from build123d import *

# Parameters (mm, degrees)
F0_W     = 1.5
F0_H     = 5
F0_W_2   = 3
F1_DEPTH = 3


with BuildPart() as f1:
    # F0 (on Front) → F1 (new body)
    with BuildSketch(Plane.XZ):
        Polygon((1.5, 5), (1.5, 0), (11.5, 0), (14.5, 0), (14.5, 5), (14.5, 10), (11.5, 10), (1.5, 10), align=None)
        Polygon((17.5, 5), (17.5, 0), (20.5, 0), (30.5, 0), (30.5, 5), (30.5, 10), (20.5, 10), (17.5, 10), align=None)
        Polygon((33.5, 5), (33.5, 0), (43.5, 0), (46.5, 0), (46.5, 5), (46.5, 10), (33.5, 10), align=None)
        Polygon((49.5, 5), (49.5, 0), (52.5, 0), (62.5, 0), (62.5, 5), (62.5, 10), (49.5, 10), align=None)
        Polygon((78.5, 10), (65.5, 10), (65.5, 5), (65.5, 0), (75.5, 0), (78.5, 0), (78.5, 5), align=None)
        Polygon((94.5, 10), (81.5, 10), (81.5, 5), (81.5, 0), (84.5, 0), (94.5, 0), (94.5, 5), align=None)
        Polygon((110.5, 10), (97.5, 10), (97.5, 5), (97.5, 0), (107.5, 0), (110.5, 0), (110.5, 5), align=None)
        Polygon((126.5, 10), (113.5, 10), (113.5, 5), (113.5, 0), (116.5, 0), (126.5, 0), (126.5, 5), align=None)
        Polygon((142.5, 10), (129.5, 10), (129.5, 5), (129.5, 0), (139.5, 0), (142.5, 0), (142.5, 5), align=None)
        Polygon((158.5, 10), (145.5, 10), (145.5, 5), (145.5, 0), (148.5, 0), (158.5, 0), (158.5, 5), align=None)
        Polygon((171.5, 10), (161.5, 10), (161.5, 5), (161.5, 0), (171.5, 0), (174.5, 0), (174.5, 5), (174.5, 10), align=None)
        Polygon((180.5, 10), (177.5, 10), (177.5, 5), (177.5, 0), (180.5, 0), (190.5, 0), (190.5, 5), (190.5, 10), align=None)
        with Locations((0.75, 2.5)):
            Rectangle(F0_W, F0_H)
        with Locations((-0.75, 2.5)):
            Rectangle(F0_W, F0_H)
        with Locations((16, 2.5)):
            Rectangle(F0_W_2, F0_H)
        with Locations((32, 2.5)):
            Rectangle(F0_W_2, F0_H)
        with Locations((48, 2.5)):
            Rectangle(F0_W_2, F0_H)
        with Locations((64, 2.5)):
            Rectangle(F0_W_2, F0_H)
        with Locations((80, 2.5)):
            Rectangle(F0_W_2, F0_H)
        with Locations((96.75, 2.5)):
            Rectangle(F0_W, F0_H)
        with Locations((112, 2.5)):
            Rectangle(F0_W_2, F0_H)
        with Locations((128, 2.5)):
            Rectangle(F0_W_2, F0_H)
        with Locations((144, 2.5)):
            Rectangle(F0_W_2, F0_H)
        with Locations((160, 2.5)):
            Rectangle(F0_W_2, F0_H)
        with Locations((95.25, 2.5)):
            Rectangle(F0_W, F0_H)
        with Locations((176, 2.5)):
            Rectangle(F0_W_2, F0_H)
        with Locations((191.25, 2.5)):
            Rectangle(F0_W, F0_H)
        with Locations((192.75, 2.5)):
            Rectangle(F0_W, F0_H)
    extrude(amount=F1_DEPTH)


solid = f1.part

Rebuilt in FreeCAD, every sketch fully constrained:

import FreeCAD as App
import Part
import Sketcher
from FreeCAD import Vector


def add_polygon(sketch, points):
    """Adds a closed chain of lines whose ends are joined by coincident constraints."""
    first, n = sketch.GeometryCount, len(points)
    for a, b in zip(points, points[1:] + points[:1]):
        sketch.addGeometry(Part.LineSegment(App.Vector(*a, 0), App.Vector(*b, 0)), False)
    for i in range(n):
        sketch.addConstraint(Sketcher.Constraint("Coincident", first + i, 2, first + (i + 1) % n, 1))

doc = App.newDocument("Part")
params = doc.addObject("Spreadsheet::Sheet", "Params")
for row, (alias, value) in enumerate([
    ("sketch1_width", "13 mm"),
    ("sketch1_width2", "3 mm"),
    ("sketch1_height", "5 mm"),
    ("pad1_length", "3 mm"),
], start=1):
    params.set(f"A{row}", alias)
    params.set(f"B{row}", "=" + value)
    params.setAlias(f"B{row}", alias)

body = doc.addObject("PartDesign::Body", "Body")

sketch1 = body.newObject("Sketcher::SketchObject", "Sketch")
sketch1.AttachmentSupport = (doc.getObject("XZ_Plane"), [""])
sketch1.MapMode = "FlatFace"
add_polygon(sketch1, [(14.5, 5), (14.5, 10), (1.5, 10), (1.5, 5), (-1.5, 5), (-1.5, 0), (193.5, 0), (193.5, 5), (190.5, 5), (190.5, 10), (177.5, 10), (177.5, 5), (174.5, 5), (174.5, 10), (161.5, 10), (161.5, 5), (158.5, 5), (158.5, 10), (145.5, 10), (145.5, 5), (142.5, 5), (142.5, 10), (129.5, 10), (129.5, 5), (126.5, 5), (126.5, 10), (113.5, 10), (113.5, 5), (110.5, 5), (110.5, 10), (97.5, 10), (97.5, 5), (94.5, 5), (94.5, 10), (81.5, 10), (81.5, 5), (78.5, 5), (78.5, 10), (65.5, 10), (65.5, 5), (62.5, 5), (62.5, 10), (49.5, 10), (49.5, 5), (46.5, 5), (46.5, 10), (33.5, 10), (33.5, 5), (30.5, 5), (30.5, 10), (17.5, 10), (17.5, 5)])
sketch1.addConstraint([
    Sketcher.Constraint("Vertical", 0),
    Sketcher.Constraint("Horizontal", 1),
    Sketcher.Constraint("Vertical", 2),
    Sketcher.Constraint("Horizontal", 3),
    Sketcher.Constraint("Vertical", 4),
    Sketcher.Constraint("Horizontal", 5),
    Sketcher.Constraint("Vertical", 6),
    Sketcher.Constraint("Horizontal", 7),
    Sketcher.Constraint("Vertical", 8),
    Sketcher.Constraint("Horizontal", 9),
    Sketcher.Constraint("Vertical", 10),
    Sketcher.Constraint("Horizontal", 11),
    Sketcher.Constraint("Vertical", 12),
    Sketcher.Constraint("Horizontal", 13),
    Sketcher.Constraint("Vertical", 14),
    Sketcher.Constraint("Horizontal", 15),
    Sketcher.Constraint("Vertical", 16),
    Sketcher.Constraint("Horizontal", 17),
    Sketcher.Constraint("Vertical", 18),
    Sketcher.Constraint("Horizontal", 19),
    Sketcher.Constraint("Vertical", 20),
    Sketcher.Constraint("Horizontal", 21),
    Sketcher.Constraint("Vertical", 22),
    Sketcher.Constraint("Horizontal", 23),
    Sketcher.Constraint("Vertical", 24),
    Sketcher.Constraint("Horizontal", 25),
    Sketcher.Constraint("Vertical", 26),
    Sketcher.Constraint("Horizontal", 27),
    Sketcher.Constraint("Vertical", 28),
    Sketcher.Constraint("Horizontal", 29),
    Sketcher.Constraint("Vertical", 30),
    Sketcher.Constraint("Horizontal", 31),
    Sketcher.Constraint("Vertical", 32),
    Sketcher.Constraint("Horizontal", 33),
    Sketcher.Constraint("Vertical", 34),
    Sketcher.Constraint("Horizontal", 35),
    Sketcher.Constraint("Vertical", 36),
    Sketcher.Constraint("Horizontal", 37),
    Sketcher.Constraint("Vertical", 38),
    Sketcher.Constraint("Horizontal", 39),
    Sketcher.Constraint("Vertical", 40),
    Sketcher.Constraint("Horizontal", 41),
    Sketcher.Constraint("Vertical", 42),
    Sketcher.Constraint("Horizontal", 43),
    Sketcher.Constraint("Vertical", 44),
    Sketcher.Constraint("Horizontal", 45),
    Sketcher.Constraint("Vertical", 46),
    Sketcher.Constraint("Horizontal", 47),
    Sketcher.Constraint("Vertical", 48),
    Sketcher.Constraint("Horizontal", 49),
    Sketcher.Constraint("Vertical", 50),
    Sketcher.Constraint("Horizontal", 51),
    Sketcher.Constraint("PointOnObject", 4, 2, -1),
    Sketcher.Constraint("Horizontal", 3, 2, 6, 2),
    Sketcher.Constraint("Horizontal", 1, 2, 8, 2),
    Sketcher.Constraint("Horizontal", 7, 2, 10, 2),
    Sketcher.Constraint("Horizontal", 9, 2, 12, 2),
    Sketcher.Constraint("Horizontal", 11, 2, 14, 2),
    Sketcher.Constraint("Horizontal", 13, 2, 16, 2),
    Sketcher.Constraint("Horizontal", 15, 2, 18, 2),
    Sketcher.Constraint("Horizontal", 17, 2, 20, 2),
    Sketcher.Constraint("Horizontal", 19, 2, 22, 2),
    Sketcher.Constraint("Horizontal", 21, 2, 24, 2),
    Sketcher.Constraint("Horizontal", 23, 2, 26, 2),
    Sketcher.Constraint("Horizontal", 25, 2, 28, 2),
    Sketcher.Constraint("Horizontal", 27, 2, 30, 2),
    Sketcher.Constraint("Horizontal", 29, 2, 32, 2),
    Sketcher.Constraint("Horizontal", 31, 2, 34, 2),
    Sketcher.Constraint("Horizontal", 33, 2, 36, 2),
    Sketcher.Constraint("Horizontal", 35, 2, 38, 2),
    Sketcher.Constraint("Horizontal", 37, 2, 40, 2),
    Sketcher.Constraint("Horizontal", 39, 2, 42, 2),
    Sketcher.Constraint("Horizontal", 41, 2, 44, 2),
    Sketcher.Constraint("Horizontal", 43, 2, 46, 2),
    Sketcher.Constraint("Horizontal", 45, 2, 48, 2),
    Sketcher.Constraint("Horizontal", 47, 2, 50, 2),
    Sketcher.Constraint("Equal", 3, 7),
    Sketcher.Constraint("Equal", 1, 9),
    Sketcher.Constraint("Equal", 7, 11),
    Sketcher.Constraint("Equal", 9, 13),
    Sketcher.Constraint("Equal", 11, 15),
    Sketcher.Constraint("Equal", 13, 17),
    Sketcher.Constraint("Equal", 15, 19),
    Sketcher.Constraint("Equal", 17, 21),
    Sketcher.Constraint("Equal", 19, 23),
    Sketcher.Constraint("Equal", 21, 25),
    Sketcher.Constraint("Equal", 23, 27),
    Sketcher.Constraint("Equal", 25, 29),
    Sketcher.Constraint("Equal", 27, 31),
    Sketcher.Constraint("Equal", 29, 33),
    Sketcher.Constraint("Equal", 31, 35),
    Sketcher.Constraint("Equal", 33, 37),
    Sketcher.Constraint("Equal", 35, 39),
    Sketcher.Constraint("Equal", 37, 41),
    Sketcher.Constraint("Equal", 39, 43),
    Sketcher.Constraint("Equal", 41, 45),
    Sketcher.Constraint("Equal", 43, 47),
    Sketcher.Constraint("Equal", 45, 49),
    Sketcher.Constraint("Equal", 47, 51),
    Sketcher.Constraint("Equal", 2, 4),
    Sketcher.Constraint("DistanceX", 1, 2, 1, 1, 13.0),
    Sketcher.Constraint("DistanceX", 3, 2, 3, 1, 3.0),
    Sketcher.Constraint("DistanceY", 0, 1, 0, 2, 5.0),
    Sketcher.Constraint("DistanceX", -1, 1, 0, 2, 14.5),
])
sketch1.setExpression("Constraints[152]", "Params.sketch1_width")
sketch1.setExpression("Constraints[153]", "Params.sketch1_width2")
sketch1.setExpression("Constraints[154]", "Params.sketch1_height")
pad1 = body.newObject("PartDesign::Pad", "Pad")
pad1.Profile = sketch1
pad1.setExpression("Length", "Params.pad1_length")

doc.recompute()
